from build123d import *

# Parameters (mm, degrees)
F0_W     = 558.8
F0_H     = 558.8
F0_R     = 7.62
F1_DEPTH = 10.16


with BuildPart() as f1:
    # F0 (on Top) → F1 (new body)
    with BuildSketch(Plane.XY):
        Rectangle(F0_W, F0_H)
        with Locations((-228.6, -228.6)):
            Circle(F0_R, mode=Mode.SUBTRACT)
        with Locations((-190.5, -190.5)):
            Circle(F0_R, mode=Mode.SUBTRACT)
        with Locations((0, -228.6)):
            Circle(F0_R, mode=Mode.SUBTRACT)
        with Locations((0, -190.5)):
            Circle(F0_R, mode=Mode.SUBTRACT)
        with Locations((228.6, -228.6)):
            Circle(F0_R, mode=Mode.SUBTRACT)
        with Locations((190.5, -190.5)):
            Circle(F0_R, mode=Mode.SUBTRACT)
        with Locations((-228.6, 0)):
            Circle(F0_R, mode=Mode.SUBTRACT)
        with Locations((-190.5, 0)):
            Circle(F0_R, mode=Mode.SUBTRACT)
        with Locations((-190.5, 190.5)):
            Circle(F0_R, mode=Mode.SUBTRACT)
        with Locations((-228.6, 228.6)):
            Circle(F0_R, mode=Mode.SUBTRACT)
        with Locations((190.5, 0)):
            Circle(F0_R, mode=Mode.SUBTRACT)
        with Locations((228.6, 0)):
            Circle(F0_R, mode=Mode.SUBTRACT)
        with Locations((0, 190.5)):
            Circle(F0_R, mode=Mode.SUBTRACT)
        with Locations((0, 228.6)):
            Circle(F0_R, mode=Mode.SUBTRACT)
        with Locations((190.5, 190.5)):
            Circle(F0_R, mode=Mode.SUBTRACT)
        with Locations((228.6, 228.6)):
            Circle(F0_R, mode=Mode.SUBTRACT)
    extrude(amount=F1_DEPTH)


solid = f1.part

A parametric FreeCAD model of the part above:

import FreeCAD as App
import Part
import Sketcher
Q = App.Units.Quantity


def add_polygon(sketch, points):
    """Adds a closed chain of lines whose ends are joined by coincident constraints."""
    first, n = sketch.GeometryCount, len(points)
    for a, b in zip(points, points[1:] + points[:1]):
        sketch.addGeometry(Part.LineSegment(App.Vector(*a, 0), App.Vector(*b, 0)), False)
    for i in range(n):
        sketch.addConstraint(Sketcher.Constraint("Coincident", first + i, 2, first + (i + 1) % n, 1))

doc = App.newDocument("Part")
params = doc.addObject("Spreadsheet::Sheet", "Params")
for row, (alias, value) in enumerate([
    ("sketch1_diameter", "0.6 in"),
    ("sketch1_width", "22 in"),
    ("pad1_length", "0.4 in"),
], start=1):
    params.set(f"A{row}", alias)
    params.set(f"B{row}", "=" + value)
    params.setAlias(f"B{row}", alias)

body = doc.addObject("PartDesign::Body", "Body")

sketch1 = body.newObject("Sketcher::SketchObject", "Sketch")
sketch1.AttachmentSupport = (doc.getObject("XY_Plane"), [""])
sketch1.MapMode = "FlatFace"
add_polygon(sketch1, [(-279, 279), (-279, -279), (279, -279), (279, 279)])
sketch1.addGeometry(Part.Circle(App.Vector(-229, -229, 0), App.Vector(0, 0, 1), 8), False)
sketch1.addGeometry(Part.Circle(App.Vector(-190, -190, 0), App.Vector(0, 0, 1), 8), False)
sketch1.addGeometry(Part.Circle(App.Vector(0, -229, 0), App.Vector(0, 0, 1), 8), False)
sketch1.addGeometry(Part.Circle(App.Vector(0, -190, 0), App.Vector(0, 0, 1), 8), False)
sketch1.addGeometry(Part.Circle(App.Vector(229, -229, 0), App.Vector(0, 0, 1), 8), False)
sketch1.addGeometry(Part.Circle(App.Vector(190, -190, 0), App.Vector(0, 0, 1), 8), False)
sketch1.addGeometry(Part.Circle(App.Vector(-229, 0, 0), App.Vector(0, 0, 1), 8), False)
sketch1.addGeometry(Part.Circle(App.Vector(-190, 0, 0), App.Vector(0, 0, 1), 8), False)
sketch1.addGeometry(Part.Circle(App.Vector(-190, 190, 0), App.Vector(0, 0, 1), 8), False)
sketch1.addGeometry(Part.Circle(App.Vector(-229, 229, 0), App.Vector(0, 0, 1), 8), False)
sketch1.addGeometry(Part.Circle(App.Vector(190, 0, 0), App.Vector(0, 0, 1), 8), False)
sketch1.addGeometry(Part.Circle(App.Vector(229, 0, 0), App.Vector(0, 0, 1), 8), False)
sketch1.addGeometry(Part.Circle(App.Vector(0, 190, 0), App.Vector(0, 0, 1), 8), False)
sketch1.addGeometry(Part.Circle(App.Vector(0, 229, 0), App.Vector(0, 0, 1), 8), False)
sketch1.addGeometry(Part.Circle(App.Vector(190, 190, 0), App.Vector(0, 0, 1), 8), False)
sketch1.addGeometry(Part.Circle(App.Vector(229, 229, 0), App.Vector(0, 0, 1), 8), False)
sketch1.addConstraint([
    Sketcher.Constraint("Vertical", 0),
    Sketcher.Constraint("Horizontal", 1),
    Sketcher.Constraint("Vertical", 2),
    Sketcher.Constraint("Horizontal", 3),
    Sketcher.Constraint("Equal", 4, 5),
    Sketcher.Constraint("Equal", 5, 6),
    Sketcher.Constraint("Equal", 6, 7),
    Sketcher.Constraint("Equal", 7, 8),
    Sketcher.Constraint("Equal", 8, 9),
    Sketcher.Constraint("Equal", 9, 10),
    Sketcher.Constraint("Equal", 10, 11),
    Sketcher.Constraint("Equal", 11, 12),
    Sketcher.Constraint("Equal", 12, 13),
    Sketcher.Constraint("Equal", 13, 14),
    Sketcher.Constraint("Equal", 14, 15),
    Sketcher.Constraint("Equal", 15, 16),
    Sketcher.Constraint("Equal", 16, 17),
    Sketcher.Constraint("Equal", 17, 18),
    Sketcher.Constraint("Equal", 18, 19),
    Sketcher.Constraint("Symmetric", 9, 3, 12, 3, -1, 1),
    Sketcher.Constraint("Symmetric", 8, 3, 13, 3, -1, 1),
    Sketcher.Constraint("Symmetric", 11, 3, 14, 3, -1, 1),
    Sketcher.Constraint("Symmetric", 10, 3, 15, 3, -1, 1),
    Sketcher.Constraint("Symmetric", 7, 3, 16, 3, -1, 1),
    Sketcher.Constraint("Symmetric", 6, 3, 17, 3, -1, 1),
    Sketcher.Constraint("Symmetric", 5, 3, 18, 3, -1, 1),
    Sketcher.Constraint("Symmetric", 4, 3, 19, 3, -1, 1),
    Sketcher.Constraint("Symmetric", 0, 2, 2, 2, -1, 1),
    Sketcher.Constraint("Symmetric", 4, 3, 8, 3, -2),
    Sketcher.Constraint("Symmetric", 5, 3, 9, 3, -2),
    Sketcher.Constraint("PointOnObject", 6, 3, -2),
    Sketcher.Constraint("PointOnObject", 7, 3, -2),
    Sketcher.Constraint("PointOnObject", 10, 3, -1),
    Sketcher.Constraint("PointOnObject", 11, 3, -1),
    Sketcher.Constraint("Horizontal", 4, 3, 6, 3),
    Sketcher.Constraint("Horizontal", 5, 3, 7, 3),
    Sketcher.Constraint("Vertical", 4, 3, 10, 3),
    Sketcher.Constraint("Vertical", 5, 3, 11, 3),
    Sketcher.Constraint("Equal", 3, 0),
    Sketcher.Constraint("Diameter", 4, Q("0.6 in")),
    Sketcher.Constraint("DistanceX", 1, 1, 1, 2, Q("22 in")),
    Sketcher.Constraint("DistanceX", 4, 3, -1, 1, Q("9 in")),
    Sketcher.Constraint("DistanceY", 4, 3, -1, 1, Q("9 in")),
    Sketcher.Constraint("DistanceX", 5, 3, 9, 3, Q("15 in")),
    Sketcher.Constraint("DistanceY", 5, 3, 12, 3, Q("15 in")),
])
sketch1.setExpression("Constraints[43]", "Params.sketch1_diameter")
sketch1.setExpression("Constraints[44]", "Params.sketch1_width")
pad1 = body.newObject("PartDesign::Pad", "Pad")
pad1.Profile = sketch1
pad1.setExpression("Length", "Params.pad1_length")

doc.recompute()
